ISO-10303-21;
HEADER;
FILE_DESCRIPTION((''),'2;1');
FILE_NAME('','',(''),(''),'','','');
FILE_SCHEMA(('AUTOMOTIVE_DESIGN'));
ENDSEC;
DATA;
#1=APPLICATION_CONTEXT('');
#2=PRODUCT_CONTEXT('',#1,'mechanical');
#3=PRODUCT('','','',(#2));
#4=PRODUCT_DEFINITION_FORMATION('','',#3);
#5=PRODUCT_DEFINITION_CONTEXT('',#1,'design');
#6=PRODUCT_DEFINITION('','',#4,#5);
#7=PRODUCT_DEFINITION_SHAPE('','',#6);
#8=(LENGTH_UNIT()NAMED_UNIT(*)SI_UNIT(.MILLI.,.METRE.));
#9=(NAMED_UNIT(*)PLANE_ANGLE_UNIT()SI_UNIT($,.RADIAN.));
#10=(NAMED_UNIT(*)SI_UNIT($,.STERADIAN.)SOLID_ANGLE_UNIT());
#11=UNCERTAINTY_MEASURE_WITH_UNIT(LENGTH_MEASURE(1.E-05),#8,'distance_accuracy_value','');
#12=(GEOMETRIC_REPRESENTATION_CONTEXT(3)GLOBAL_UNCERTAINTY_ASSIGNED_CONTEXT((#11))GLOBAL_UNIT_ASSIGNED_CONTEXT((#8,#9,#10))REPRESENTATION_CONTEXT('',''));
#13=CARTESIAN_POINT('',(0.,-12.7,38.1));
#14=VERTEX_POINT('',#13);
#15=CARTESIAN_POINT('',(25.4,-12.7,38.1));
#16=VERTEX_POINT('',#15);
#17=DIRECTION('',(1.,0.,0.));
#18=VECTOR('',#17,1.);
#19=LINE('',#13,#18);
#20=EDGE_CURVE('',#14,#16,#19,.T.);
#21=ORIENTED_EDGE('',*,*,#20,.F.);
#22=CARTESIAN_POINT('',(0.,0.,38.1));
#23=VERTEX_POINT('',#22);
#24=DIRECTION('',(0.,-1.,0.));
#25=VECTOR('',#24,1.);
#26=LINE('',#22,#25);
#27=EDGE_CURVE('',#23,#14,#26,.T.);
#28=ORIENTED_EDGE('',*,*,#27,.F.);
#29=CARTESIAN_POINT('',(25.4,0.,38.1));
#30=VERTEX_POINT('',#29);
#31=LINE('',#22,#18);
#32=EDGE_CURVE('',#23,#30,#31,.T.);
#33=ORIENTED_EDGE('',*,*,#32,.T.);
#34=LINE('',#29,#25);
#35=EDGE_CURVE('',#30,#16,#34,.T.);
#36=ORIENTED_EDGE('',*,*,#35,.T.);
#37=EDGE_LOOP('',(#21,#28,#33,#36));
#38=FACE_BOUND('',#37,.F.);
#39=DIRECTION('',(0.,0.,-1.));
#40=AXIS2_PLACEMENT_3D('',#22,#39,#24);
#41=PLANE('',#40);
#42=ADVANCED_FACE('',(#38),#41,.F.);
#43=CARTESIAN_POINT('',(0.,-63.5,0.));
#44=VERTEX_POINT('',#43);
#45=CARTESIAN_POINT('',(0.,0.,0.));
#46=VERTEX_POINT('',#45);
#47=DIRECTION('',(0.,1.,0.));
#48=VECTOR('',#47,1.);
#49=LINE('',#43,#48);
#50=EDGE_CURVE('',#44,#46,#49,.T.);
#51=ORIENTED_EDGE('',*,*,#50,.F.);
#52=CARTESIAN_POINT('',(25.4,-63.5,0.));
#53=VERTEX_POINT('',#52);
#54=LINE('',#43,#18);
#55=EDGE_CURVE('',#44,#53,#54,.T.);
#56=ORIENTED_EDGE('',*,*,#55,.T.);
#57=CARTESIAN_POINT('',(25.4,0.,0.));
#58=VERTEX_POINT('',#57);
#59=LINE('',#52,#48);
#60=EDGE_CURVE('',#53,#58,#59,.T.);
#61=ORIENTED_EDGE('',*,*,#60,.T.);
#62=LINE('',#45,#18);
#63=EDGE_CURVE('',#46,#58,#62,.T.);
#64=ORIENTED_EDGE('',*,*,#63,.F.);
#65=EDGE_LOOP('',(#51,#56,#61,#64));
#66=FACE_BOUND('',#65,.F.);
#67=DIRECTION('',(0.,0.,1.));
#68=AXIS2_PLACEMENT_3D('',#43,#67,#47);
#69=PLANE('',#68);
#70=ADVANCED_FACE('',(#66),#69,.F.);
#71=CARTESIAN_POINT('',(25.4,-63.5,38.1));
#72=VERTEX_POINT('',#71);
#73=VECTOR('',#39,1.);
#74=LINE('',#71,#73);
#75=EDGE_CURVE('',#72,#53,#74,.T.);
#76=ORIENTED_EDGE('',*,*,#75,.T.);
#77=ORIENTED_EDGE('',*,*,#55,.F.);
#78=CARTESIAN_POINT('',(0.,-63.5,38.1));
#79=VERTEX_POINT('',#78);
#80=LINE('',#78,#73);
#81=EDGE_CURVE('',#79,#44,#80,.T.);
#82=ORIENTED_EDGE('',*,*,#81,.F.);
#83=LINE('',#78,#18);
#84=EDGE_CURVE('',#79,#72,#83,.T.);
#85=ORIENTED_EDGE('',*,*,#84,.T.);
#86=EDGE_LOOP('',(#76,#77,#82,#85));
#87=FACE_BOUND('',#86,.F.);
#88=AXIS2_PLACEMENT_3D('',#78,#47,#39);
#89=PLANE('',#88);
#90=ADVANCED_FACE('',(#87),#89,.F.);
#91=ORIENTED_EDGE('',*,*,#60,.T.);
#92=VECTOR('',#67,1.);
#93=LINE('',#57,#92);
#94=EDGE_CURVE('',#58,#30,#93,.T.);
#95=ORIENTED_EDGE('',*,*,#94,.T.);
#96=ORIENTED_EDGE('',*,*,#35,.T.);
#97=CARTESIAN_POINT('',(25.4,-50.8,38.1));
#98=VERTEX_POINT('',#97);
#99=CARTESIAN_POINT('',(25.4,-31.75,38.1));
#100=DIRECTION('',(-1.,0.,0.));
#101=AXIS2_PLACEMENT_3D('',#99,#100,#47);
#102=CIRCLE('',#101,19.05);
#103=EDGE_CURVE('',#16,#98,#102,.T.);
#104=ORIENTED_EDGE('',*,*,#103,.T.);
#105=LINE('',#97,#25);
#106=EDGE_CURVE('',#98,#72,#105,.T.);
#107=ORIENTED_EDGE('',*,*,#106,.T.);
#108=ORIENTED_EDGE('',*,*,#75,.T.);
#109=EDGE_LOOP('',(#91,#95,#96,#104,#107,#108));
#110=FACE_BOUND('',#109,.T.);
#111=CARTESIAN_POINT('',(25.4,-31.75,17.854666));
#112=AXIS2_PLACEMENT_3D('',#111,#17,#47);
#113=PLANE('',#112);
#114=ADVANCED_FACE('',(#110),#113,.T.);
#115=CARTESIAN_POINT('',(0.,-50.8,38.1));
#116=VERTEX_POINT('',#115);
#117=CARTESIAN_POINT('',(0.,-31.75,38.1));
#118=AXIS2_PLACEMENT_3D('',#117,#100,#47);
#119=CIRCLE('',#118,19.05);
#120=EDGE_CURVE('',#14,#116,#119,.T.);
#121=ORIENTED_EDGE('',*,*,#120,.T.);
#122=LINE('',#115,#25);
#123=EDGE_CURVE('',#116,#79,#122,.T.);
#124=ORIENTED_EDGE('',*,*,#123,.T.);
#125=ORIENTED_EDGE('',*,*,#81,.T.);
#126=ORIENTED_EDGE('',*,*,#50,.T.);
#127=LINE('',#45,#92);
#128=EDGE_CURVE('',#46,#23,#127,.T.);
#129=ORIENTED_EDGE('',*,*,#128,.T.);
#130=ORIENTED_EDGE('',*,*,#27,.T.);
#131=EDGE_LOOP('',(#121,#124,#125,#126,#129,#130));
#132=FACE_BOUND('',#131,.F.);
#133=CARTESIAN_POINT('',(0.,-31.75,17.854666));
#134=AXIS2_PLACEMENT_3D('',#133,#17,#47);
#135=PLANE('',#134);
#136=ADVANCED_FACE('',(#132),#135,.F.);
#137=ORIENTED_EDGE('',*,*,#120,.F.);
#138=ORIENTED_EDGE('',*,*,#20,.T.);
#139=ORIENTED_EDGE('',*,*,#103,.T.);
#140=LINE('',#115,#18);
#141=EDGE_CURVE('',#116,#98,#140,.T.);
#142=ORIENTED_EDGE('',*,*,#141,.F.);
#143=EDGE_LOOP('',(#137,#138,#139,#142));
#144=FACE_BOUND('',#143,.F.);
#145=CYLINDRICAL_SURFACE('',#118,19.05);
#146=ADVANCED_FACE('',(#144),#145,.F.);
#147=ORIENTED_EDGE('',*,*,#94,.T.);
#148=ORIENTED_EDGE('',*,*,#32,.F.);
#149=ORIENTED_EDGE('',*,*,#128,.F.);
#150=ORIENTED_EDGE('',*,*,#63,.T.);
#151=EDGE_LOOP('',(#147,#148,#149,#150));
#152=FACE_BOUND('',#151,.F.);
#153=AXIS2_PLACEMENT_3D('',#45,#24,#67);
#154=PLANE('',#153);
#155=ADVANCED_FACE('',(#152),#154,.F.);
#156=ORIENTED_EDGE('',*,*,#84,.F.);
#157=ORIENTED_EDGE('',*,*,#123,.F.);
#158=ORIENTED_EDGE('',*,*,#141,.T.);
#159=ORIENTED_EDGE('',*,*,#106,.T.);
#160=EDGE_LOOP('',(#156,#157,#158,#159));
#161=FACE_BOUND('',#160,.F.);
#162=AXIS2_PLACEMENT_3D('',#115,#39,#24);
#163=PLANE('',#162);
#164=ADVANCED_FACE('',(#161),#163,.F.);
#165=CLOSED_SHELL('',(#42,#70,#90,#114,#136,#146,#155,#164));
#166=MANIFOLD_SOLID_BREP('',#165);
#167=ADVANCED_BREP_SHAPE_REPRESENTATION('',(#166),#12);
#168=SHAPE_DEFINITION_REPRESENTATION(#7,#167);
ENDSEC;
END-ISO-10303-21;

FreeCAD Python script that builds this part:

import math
import FreeCAD as App
import Part
import Sketcher
Q = App.Units.Quantity

doc = App.newDocument("Part")
body = doc.addObject("PartDesign::Body", "Body")

# Sketch on YZ plane
sketch1 = body.newObject("Sketcher::SketchObject", "Sketch")
sketch1.AttachmentSupport = (doc.getObject("YZ_Plane"), [""])
sketch1.MapMode = "FlatFace"
sketch1.addGeometry([
    Part.LineSegment(App.Vector(-64, 0, 0), App.Vector(0, 0, 0)),  # 0
    Part.LineSegment(App.Vector(0, 0, 0), App.Vector(0, 38, 0)),  # 1
    Part.LineSegment(App.Vector(0, 38, 0), App.Vector(-13, 38, 0)),  # 2
    Part.ArcOfCircle(Part.Circle(App.Vector(-32, 38, 0), App.Vector(0, 0, 1), 19), math.radians(180), math.radians(360)),  # 3
    Part.LineSegment(App.Vector(-51, 38, 0), App.Vector(-64, 38, 0)),  # 4
    Part.LineSegment(App.Vector(-64, 38, 0), App.Vector(-64, 0, 0)),  # 5
], False)
sketch1.addConstraint([
    Sketcher.Constraint("Coincident", 0, 2, 1, 1),
    Sketcher.Constraint("Coincident", 1, 2, 2, 1),
    Sketcher.Constraint("Coincident", 2, 2, 3, 2),
    Sketcher.Constraint("Coincident", 3, 1, 4, 1),
    Sketcher.Constraint("Coincident", 4, 2, 5, 1),
    Sketcher.Constraint("Coincident", 5, 2, 0, 1),
    Sketcher.Constraint("Horizontal", 0),
    Sketcher.Constraint("Vertical", 1),
    Sketcher.Constraint("Horizontal", 2),
    Sketcher.Constraint("Horizontal", 4),
    Sketcher.Constraint("Vertical", 5),
    Sketcher.Constraint("Coincident", 0, 2, -1, 1),
    Sketcher.Constraint("Horizontal", 3, 3, 1, 2),
    Sketcher.Constraint("Horizontal", 2, 2, 3, 1),
    Sketcher.Constraint("Equal", 2, 4),
    Sketcher.Constraint("Radius", 3, Q("0.75 in")),
    Sketcher.Constraint("DistanceX", 0, 1, 0, 2, Q("2.5 in")),
    Sketcher.Constraint("DistanceY", 1, 1, 1, 2, Q("1.5 in")),
])
pad1 = body.newObject("PartDesign::Pad", "Pad")
pad1.Profile = sketch1
pad1.Length = Q("1 in")

doc.recompute()
